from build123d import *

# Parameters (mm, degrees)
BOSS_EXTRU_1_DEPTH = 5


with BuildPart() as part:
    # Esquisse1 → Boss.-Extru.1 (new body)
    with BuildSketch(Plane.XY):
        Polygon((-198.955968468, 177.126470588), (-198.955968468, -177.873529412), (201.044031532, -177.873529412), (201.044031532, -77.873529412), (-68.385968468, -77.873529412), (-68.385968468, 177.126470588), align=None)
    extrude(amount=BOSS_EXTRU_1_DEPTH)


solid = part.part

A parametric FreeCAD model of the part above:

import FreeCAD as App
import Part
import Sketcher
from FreeCAD import Vector
Q = App.Units.Quantity


def add_polygon(sketch, points):
    """Adds a closed chain of lines whose ends are joined by coincident constraints."""
    first, n = sketch.GeometryCount, len(points)
    for a, b in zip(points, points[1:] + points[:1]):
        sketch.addGeometry(Part.LineSegment(App.Vector(*a, 0), App.Vector(*b, 0)), False)
    for i in range(n):
        sketch.addConstraint(Sketcher.Constraint("Coincident", first + i, 2, first + (i + 1) % n, 1))

doc = App.newDocument("Part")
params = doc.addObject("Spreadsheet::Sheet", "Params")
for row, (alias, value) in enumerate([
    ("sketch1_width", "400 mm"),
    ("sketch1_height", "355 mm"),
    ("sketch1_height2", "100 mm"),
    ("sketch1_width2", "269.43 mm"),
    ("pad1_length", "5 mm"),
], start=1):
    params.set(f"A{row}", alias)
    params.set(f"B{row}", "=" + value)
    params.setAlias(f"B{row}", alias)

body = doc.addObject("PartDesign::Body", "Body")

# Sketch on XY plane
sketch1 = body.newObject("Sketcher::SketchObject", "Sketch")
sketch1.AttachmentSupport = (doc.getObject("XY_Plane"), [""])
sketch1.MapMode = "FlatFace"
add_polygon(sketch1, [(-199, 177), (-199, -178), (201, -178), (201, -78), (-68, -78), (-68, 177)])  # lines 0-5
sketch1.addConstraint(Sketcher.Constraint("Vertical", 0))
sketch1.addConstraint(Sketcher.Constraint("Horizontal", 1))
sketch1.addConstraint(Sketcher.Constraint("Vertical", 2))
sketch1.addConstraint(Sketcher.Constraint("Horizontal", 3))
sketch1.addConstraint(Sketcher.Constraint("Vertical", 4))
sketch1.addConstraint(Sketcher.Constraint("Horizontal", 5))
sketch1.addConstraint(Sketcher.Constraint("DistanceX", 1, 1, 1, 2, Q("400 mm")))
sketch1.addConstraint(Sketcher.Constraint("DistanceY", 0, 2, 0, 1, Q("355 mm")))
sketch1.addConstraint(Sketcher.Constraint("DistanceY", 2, 1, 2, 2, Q("100 mm")))
sketch1.addConstraint(Sketcher.Constraint("DistanceX", 3, 2, 3, 1, Q("269.43 mm")))
sketch1.addConstraint(Sketcher.Constraint("DistanceX", 0, 2, -1, 1, Q("198.955968 mm")))
sketch1.addConstraint(Sketcher.Constraint("DistanceY", 0, 2, -1, 1, Q("177.873529 mm")))
sketch1.setExpression("Constraints[12]", "Params.sketch1_width")
sketch1.setExpression("Constraints[13]", "Params.sketch1_height")
sketch1.setExpression("Constraints[14]", "Params.sketch1_height2")
sketch1.setExpression("Constraints[15]", "Params.sketch1_width2")
pad1 = body.newObject("PartDesign::Pad", "Pad")
pad1.Profile = sketch1
pad1.setExpression("Length", "Params.pad1_length")

doc.recompute()
